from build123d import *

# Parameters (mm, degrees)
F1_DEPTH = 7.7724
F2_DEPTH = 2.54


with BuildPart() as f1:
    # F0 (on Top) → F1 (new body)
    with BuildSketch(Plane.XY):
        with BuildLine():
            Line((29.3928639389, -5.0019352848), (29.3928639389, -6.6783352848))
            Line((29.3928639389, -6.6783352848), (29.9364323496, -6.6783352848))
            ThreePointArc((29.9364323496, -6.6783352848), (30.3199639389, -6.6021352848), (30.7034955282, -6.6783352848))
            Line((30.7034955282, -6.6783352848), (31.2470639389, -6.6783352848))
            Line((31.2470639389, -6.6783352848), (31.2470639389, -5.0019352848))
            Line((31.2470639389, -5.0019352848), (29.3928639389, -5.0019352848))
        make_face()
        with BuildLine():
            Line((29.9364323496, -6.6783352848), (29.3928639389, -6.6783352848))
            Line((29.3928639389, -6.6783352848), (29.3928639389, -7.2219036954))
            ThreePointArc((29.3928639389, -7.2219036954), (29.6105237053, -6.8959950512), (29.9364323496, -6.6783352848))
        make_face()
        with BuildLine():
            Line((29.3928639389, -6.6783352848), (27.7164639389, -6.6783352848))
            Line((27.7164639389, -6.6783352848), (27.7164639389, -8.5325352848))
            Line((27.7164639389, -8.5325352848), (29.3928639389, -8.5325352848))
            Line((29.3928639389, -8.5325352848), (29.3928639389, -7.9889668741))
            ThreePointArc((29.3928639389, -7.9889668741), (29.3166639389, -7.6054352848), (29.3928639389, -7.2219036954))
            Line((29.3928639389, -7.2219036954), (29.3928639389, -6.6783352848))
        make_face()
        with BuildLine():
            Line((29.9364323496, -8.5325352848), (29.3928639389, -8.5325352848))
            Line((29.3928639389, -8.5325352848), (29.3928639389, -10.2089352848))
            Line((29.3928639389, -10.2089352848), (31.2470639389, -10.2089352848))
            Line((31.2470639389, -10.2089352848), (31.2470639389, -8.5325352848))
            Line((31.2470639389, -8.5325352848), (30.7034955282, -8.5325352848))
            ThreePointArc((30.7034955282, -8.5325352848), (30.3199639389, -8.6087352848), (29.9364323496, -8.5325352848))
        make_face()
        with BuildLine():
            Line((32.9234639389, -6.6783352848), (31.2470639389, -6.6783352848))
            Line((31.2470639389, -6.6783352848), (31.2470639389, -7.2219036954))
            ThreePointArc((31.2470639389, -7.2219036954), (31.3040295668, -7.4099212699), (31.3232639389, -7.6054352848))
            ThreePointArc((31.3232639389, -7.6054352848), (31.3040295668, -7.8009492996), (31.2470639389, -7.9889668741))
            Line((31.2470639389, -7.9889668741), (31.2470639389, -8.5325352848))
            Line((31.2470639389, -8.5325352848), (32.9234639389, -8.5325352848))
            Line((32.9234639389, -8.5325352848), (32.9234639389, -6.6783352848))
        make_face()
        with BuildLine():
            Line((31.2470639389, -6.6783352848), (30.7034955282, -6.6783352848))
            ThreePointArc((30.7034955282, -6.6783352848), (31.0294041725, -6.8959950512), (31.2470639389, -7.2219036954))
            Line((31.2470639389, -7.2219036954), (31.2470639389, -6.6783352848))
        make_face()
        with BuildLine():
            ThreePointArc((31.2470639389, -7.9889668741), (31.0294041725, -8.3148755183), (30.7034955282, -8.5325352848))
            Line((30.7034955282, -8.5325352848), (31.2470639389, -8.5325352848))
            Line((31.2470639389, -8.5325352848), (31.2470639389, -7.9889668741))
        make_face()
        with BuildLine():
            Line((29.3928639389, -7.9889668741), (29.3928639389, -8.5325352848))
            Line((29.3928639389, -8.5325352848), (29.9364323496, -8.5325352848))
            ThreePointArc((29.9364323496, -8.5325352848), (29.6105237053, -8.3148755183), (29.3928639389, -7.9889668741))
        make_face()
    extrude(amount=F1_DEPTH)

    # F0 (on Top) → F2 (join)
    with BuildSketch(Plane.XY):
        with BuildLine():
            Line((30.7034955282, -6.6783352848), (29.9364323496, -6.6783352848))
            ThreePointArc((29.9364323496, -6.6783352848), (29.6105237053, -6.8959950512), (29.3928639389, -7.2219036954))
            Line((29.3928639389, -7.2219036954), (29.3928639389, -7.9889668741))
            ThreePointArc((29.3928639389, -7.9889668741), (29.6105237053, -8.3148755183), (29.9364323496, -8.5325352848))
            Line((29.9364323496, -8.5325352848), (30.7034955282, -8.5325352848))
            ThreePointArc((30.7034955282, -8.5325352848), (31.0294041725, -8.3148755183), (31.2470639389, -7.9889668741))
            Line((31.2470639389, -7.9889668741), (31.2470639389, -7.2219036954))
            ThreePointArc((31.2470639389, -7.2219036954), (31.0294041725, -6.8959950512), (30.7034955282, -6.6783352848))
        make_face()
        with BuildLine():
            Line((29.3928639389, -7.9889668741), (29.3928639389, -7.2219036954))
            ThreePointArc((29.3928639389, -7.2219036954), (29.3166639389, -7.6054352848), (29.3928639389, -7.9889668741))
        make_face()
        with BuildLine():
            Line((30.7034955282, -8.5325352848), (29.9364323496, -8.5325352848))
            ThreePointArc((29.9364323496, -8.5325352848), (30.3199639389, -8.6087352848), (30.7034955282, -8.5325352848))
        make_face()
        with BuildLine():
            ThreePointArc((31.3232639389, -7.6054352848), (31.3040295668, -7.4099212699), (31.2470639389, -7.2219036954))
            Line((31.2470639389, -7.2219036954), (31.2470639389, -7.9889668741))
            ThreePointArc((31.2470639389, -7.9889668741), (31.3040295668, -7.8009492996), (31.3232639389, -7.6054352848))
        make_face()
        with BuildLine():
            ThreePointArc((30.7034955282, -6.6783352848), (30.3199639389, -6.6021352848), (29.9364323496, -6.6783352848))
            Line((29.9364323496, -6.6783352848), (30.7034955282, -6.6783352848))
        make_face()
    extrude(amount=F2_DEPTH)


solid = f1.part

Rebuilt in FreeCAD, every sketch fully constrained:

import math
import FreeCAD as App
import Part
import Sketcher

V = App.Vector
Q = App.Units.Quantity


def add_polygon(sketch, points):
    """Adds a closed chain of lines whose ends are joined by coincident constraints."""
    first, n = sketch.GeometryCount, len(points)
    for a, b in zip(points, points[1:] + points[:1]):
        sketch.addGeometry(Part.LineSegment(App.Vector(*a, 0), App.Vector(*b, 0)), False)
    for i in range(n):
        sketch.addConstraint(Sketcher.Constraint("Coincident", first + i, 2, first + (i + 1) % n, 1))

doc = App.newDocument("Part")
body = doc.addObject("PartDesign::Body", "Body")

# Sketch on XY plane
sketch1 = body.newObject("Sketcher::SketchObject", "Sketch")
sketch1.AttachmentSupport = (doc.getObject("XY_Plane"), [""])
sketch1.MapMode = "FlatFace"
add_polygon(sketch1, [(27.72, -8.53), (29.39, -8.53), (29.39, -10.21), (31.25, -10.21), (31.25, -8.53), (32.92, -8.53), (32.92, -6.68), (31.25, -6.68), (31.25, -5), (29.39, -5), (29.39, -6.68), (27.72, -6.68)])  # lines 0-11
sketch1.addGeometry(Part.ArcOfCircle(Part.Circle(V(30.32, -7.61, 0), V(0, 0, 1), 1), math.radians(-112), math.radians(-68)), False)  # 12
sketch1.addGeometry(Part.ArcOfCircle(Part.Circle(V(30.32, -7.61, 0), V(0, 0, 1), 1), math.radians(-158), math.radians(-112)), False)  # 13
sketch1.addGeometry(Part.ArcOfCircle(Part.Circle(V(30.32, -7.61, 0), V(0, 0, 1), 1), math.radians(158), math.radians(202)), False)  # 14
sketch1.addGeometry(Part.ArcOfCircle(Part.Circle(V(30.32, -7.61, 0), V(0, 0, 1), 1), math.radians(112), math.radians(158)), False)  # 15
sketch1.addGeometry(Part.ArcOfCircle(Part.Circle(V(30.32, -7.61, 0), V(0, 0, 1), 1), math.radians(68), math.radians(112)), False)  # 16
sketch1.addGeometry(Part.ArcOfCircle(Part.Circle(V(30.32, -7.61, 0), V(0, 0, 1), 1), math.radians(22), math.radians(68)), False)  # 17
sketch1.addGeometry(Part.ArcOfCircle(Part.Circle(V(30.32, -7.61, 0), V(0, 0, 1), 1), math.radians(0), math.radians(22)), False)  # 18
sketch1.addGeometry(Part.ArcOfCircle(Part.Circle(V(30.32, -7.61, 0), V(0, 0, 1), 1), math.radians(-22), math.radians(0)), False)  # 19
sketch1.addGeometry(Part.ArcOfCircle(Part.Circle(V(30.32, -7.61, 0), V(0, 0, 1), 1), math.radians(-68), math.radians(-22)), False)  # 20
sketch1.addConstraint([
    Sketcher.Constraint("Tangent", 12, 1, 13, 2),
    Sketcher.Constraint("Tangent", 13, 1, 14, 2),
    Sketcher.Constraint("Tangent", 14, 1, 15, 2),
    Sketcher.Constraint("Tangent", 15, 1, 16, 2),
    Sketcher.Constraint("Tangent", 16, 1, 17, 2),
    Sketcher.Constraint("Tangent", 17, 1, 18, 2),
    Sketcher.Constraint("Tangent", 18, 1, 19, 2),
    Sketcher.Constraint("Tangent", 19, 1, 20, 2),
    Sketcher.Constraint("Tangent", 20, 1, 12, 2),
    Sketcher.Constraint("Horizontal", 0),
    Sketcher.Constraint("Vertical", 1),
    Sketcher.Constraint("Horizontal", 2),
    Sketcher.Constraint("Vertical", 3),
    Sketcher.Constraint("Horizontal", 4),
    Sketcher.Constraint("Vertical", 5),
    Sketcher.Constraint("Horizontal", 6),
    Sketcher.Constraint("Vertical", 7),
    Sketcher.Constraint("Horizontal", 8),
    Sketcher.Constraint("Vertical", 9),
    Sketcher.Constraint("Horizontal", 10),
    Sketcher.Constraint("Vertical", 11),
    Sketcher.Constraint("Coincident", 14, 3, 12, 3),
    Sketcher.Constraint("Coincident", 16, 3, 12, 3),
    Sketcher.Constraint("Coincident", 18, 3, 12, 3),
    Sketcher.Constraint("Horizontal", 0, 2, 3, 2),
    Sketcher.Constraint("Horizontal", 6, 2, 9, 2),
    Sketcher.Constraint("Horizontal", 11, 2, 12, 1),
    Sketcher.Constraint("Horizontal", 10, 2, 15, 1),
    Sketcher.Constraint("Horizontal", 15, 1, 16, 1),
    Sketcher.Constraint("Horizontal", 14, 1, 17, 1),
    Sketcher.Constraint("Horizontal", 20, 3, 18, 1),
    Sketcher.Constraint("Horizontal", 13, 1, 19, 1),
    Sketcher.Constraint("Horizontal", 12, 1, 20, 1),
    Sketcher.Constraint("Vertical", 3, 2, 6, 2),
    Sketcher.Constraint("Vertical", 1, 2, 8, 2),
    Sketcher.Constraint("Vertical", 9, 2, 13, 1),
    Sketcher.Constraint("Vertical", 13, 1, 14, 1),
    Sketcher.Constraint("Vertical", 12, 1, 15, 1),
    Sketcher.Constraint("Vertical", 7, 2, 17, 1),
    Sketcher.Constraint("Equal", 0, 4),
    Sketcher.Constraint("Equal", 10, 1),
    Sketcher.Constraint("Equal", 8, 5),
    Sketcher.Constraint("Equal", 3, 7),
    Sketcher.Constraint("Radius", 12, Q("0.0395 in")),
    Sketcher.Constraint("DistanceX", 0, 1, 0, 2, Q("0.066 in")),
    Sketcher.Constraint("DistanceX", 2, 1, 2, 2, Q("0.073 in")),
    Sketcher.Constraint("DistanceX", -1, 1, 12, 3, 30.319964),
    Sketcher.Constraint("DistanceY", 12, 3, -1, 1, 7.605435),
])
pad1 = body.newObject("PartDesign::Pad", "Pad")
pad1.Profile = sketch1
pad1.Length = Q("0.306 in")

# Sketch on XY plane
sketch2 = body.newObject("Sketcher::SketchObject", "Sketch001")
sketch2.AttachmentSupport = (doc.getObject("XY_Plane"), [""])
sketch2.MapMode = "FlatFace"
sketch2.addGeometry([
    Part.ArcOfCircle(Part.Circle(V(30.32, -7.61, 0), V(0, 0, 1), 1), math.radians(112), math.radians(158)),  # 0
    Part.ArcOfCircle(Part.Circle(V(30.32, -7.61, 0), V(0, 0, 1), 1), math.radians(158), math.radians(202)),  # 1
    Part.ArcOfCircle(Part.Circle(V(30.32, -7.61, 0), V(0, 0, 1), 1), math.radians(-158), math.radians(-112)),  # 2
    Part.ArcOfCircle(Part.Circle(V(30.32, -7.61, 0), V(0, 0, 1), 1), math.radians(-112), math.radians(-68)),  # 3
    Part.ArcOfCircle(Part.Circle(V(30.32, -7.61, 0), V(0, 0, 1), 1), math.radians(-68), math.radians(-22)),  # 4
    Part.ArcOfCircle(Part.Circle(V(30.32, -7.61, 0), V(0, 0, 1), 1), math.radians(-22), math.radians(0)),  # 5
    Part.ArcOfCircle(Part.Circle(V(30.32, -7.61, 0), V(0, 0, 1), 1), math.radians(0), math.radians(22)),  # 6
    Part.ArcOfCircle(Part.Circle(V(30.32, -7.61, 0), V(0, 0, 1), 1), math.radians(22), math.radians(68)),  # 7
    Part.ArcOfCircle(Part.Circle(V(30.32, -7.61, 0), V(0, 0, 1), 1), math.radians(68), math.radians(112)),  # 8
], False)
sketch2.addConstraint([
    Sketcher.Constraint("Tangent", 0, 2, 1, 1),
    Sketcher.Constraint("Tangent", 1, 2, 2, 1),
    Sketcher.Constraint("Tangent", 2, 2, 3, 1),
    Sketcher.Constraint("Tangent", 3, 2, 4, 1),
    Sketcher.Constraint("Tangent", 4, 2, 5, 1),
    Sketcher.Constraint("Tangent", 5, 2, 6, 1),
    Sketcher.Constraint("Tangent", 6, 2, 7, 1),
    Sketcher.Constraint("Tangent", 7, 2, 8, 1),
    Sketcher.Constraint("Tangent", 8, 2, 0, 1),
    Sketcher.Constraint("Coincident", 2, 3, 0, 3),
    Sketcher.Constraint("Coincident", 4, 3, 0, 3),
    Sketcher.Constraint("Coincident", 6, 3, 0, 3),
    Sketcher.Constraint("Horizontal", 2, 2, 3, 2),
    Sketcher.Constraint("Horizontal", 1, 2, 4, 2),
    Sketcher.Constraint("Horizontal", 8, 3, 5, 2),
    Sketcher.Constraint("Horizontal", 0, 2, 6, 2),
    Sketcher.Constraint("Horizontal", 7, 2, 8, 2),
    Sketcher.Constraint("Vertical", 0, 2, 1, 2),
    Sketcher.Constraint("Vertical", 3, 2, 7, 2),
    Sketcher.Constraint("Radius", 0, Q("0.0395 in")),
    Sketcher.Constraint("DistanceX", 4, 2, 5, 2, Q("0.003 in")),
    Sketcher.Constraint("DistanceY", 2, 2, 0, 3, Q("0.0365 in")),
    Sketcher.Constraint("DistanceX", -1, 1, 0, 3, 30.319964),
    Sketcher.Constraint("DistanceY", 0, 3, -1, 1, 7.605435),
])
pad2 = body.newObject("PartDesign::Pad", "Pad001")
pad2.Profile = sketch2
pad2.Length = Q("0.1 in")

doc.recompute()
